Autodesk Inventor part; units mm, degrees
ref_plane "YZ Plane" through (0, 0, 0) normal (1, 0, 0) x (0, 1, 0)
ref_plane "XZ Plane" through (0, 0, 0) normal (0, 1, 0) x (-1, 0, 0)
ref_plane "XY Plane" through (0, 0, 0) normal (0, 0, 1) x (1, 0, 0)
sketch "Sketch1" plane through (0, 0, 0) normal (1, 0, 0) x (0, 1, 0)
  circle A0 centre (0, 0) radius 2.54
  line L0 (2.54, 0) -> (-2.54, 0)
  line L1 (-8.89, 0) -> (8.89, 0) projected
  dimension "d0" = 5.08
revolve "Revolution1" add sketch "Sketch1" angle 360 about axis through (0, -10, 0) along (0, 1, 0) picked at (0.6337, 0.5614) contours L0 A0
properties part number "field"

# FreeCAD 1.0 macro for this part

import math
import FreeCAD as App
import Part
import Sketcher

V = App.Vector
Q = App.Units.Quantity

doc = App.newDocument("Part")
body = doc.addObject("PartDesign::Body", "Body")

sketch1 = doc.addObject("Sketcher::SketchObject", "Sketch")
body.addObject(sketch1)
sketch1.AttachmentSupport = (doc.YZ_Plane, [""])
sketch1.MapMode = "FlatFace"
sketch1.addGeometry([
    Part.LineSegment(V(-2.5, 0, 0), V(2.5, 0, 0)),
    Part.ArcOfCircle(Part.Circle(V(0, 0, 0), V(0, 0, 1), 2.5), math.radians(0), math.radians(180)),
], False)
sketch1.addConstraint([
    Sketcher.Constraint("Coincident", 0, 1, 1, 2),
    Sketcher.Constraint("Coincident", 1, 1, 0, 2),
    Sketcher.Constraint("Horizontal", 0),
    Sketcher.Constraint("Coincident", 1, 3, -1, 1),
    Sketcher.Constraint("PointOnObject", 0, 1, -1),
    Sketcher.Constraint("Radius", 1, Q("0.1 in")),
])
revolution = doc.addObject("PartDesign::Revolution", "Revolution")
body.addObject(revolution)
revolution.Profile = sketch1
revolution.ReferenceAxis = (sketch1, ["H_Axis"])
revolution.Angle = 360

doc.recompute()
